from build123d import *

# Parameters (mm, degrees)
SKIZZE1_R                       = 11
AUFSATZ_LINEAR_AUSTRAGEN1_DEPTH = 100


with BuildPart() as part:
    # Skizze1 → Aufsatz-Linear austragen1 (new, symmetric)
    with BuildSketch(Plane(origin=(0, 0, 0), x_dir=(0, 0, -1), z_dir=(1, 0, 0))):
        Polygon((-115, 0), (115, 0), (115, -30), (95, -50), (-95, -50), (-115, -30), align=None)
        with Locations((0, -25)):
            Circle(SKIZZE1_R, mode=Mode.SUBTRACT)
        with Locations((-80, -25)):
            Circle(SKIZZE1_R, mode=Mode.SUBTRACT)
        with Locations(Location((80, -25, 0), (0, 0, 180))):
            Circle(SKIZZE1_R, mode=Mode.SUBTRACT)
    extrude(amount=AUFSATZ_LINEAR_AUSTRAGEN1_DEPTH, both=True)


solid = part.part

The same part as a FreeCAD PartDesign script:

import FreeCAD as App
import Part
import Sketcher

V = App.Vector


def add_polygon(sketch, points):
    """Adds a closed chain of lines whose ends are joined by coincident constraints."""
    first, n = sketch.GeometryCount, len(points)
    for a, b in zip(points, points[1:] + points[:1]):
        sketch.addGeometry(Part.LineSegment(App.Vector(*a, 0), App.Vector(*b, 0)), False)
    for i in range(n):
        sketch.addConstraint(Sketcher.Constraint("Coincident", first + i, 2, first + (i + 1) % n, 1))

doc = App.newDocument("Part")
params = doc.addObject("Spreadsheet::Sheet", "Params")
for row, (alias, value) in enumerate([
    ("sketch1_diameter", "22 mm"),
    ("sketch1_width", "30 mm"),
    ("sketch1_height", "230 mm"),
    ("sketch1_height2", "190 mm"),
    ("pad1_length", "200 mm"),
], start=1):
    params.set(f"A{row}", alias)
    params.set(f"B{row}", "=" + value)
    params.setAlias(f"B{row}", alias)

body = doc.addObject("PartDesign::Body", "Body")

# Sketch on YZ plane
sketch1 = body.newObject("Sketcher::SketchObject", "Sketch")
sketch1.AttachmentSupport = (doc.getObject("YZ_Plane"), [""])
sketch1.MapMode = "FlatFace"
add_polygon(sketch1, [(0, -115), (0, 115), (-30, 115), (-50, 95), (-50, -95), (-30, -115)])  # lines 0-5
sketch1.addGeometry(Part.Circle(V(-25, -80, 0), V(0, 0, 1), 11), False)  # 6
sketch1.addGeometry(Part.Circle(V(-25, 0, 0), V(0, 0, 1), 11), False)  # 7
sketch1.addGeometry(Part.Circle(V(-25, 80, 0), V(0, 0, 1), 11), False)  # 8
sketch1.addConstraint(Sketcher.Constraint("Vertical", 0))
sketch1.addConstraint(Sketcher.Constraint("Horizontal", 1))
sketch1.addConstraint(Sketcher.Constraint("Vertical", 3))
sketch1.addConstraint(Sketcher.Constraint("Horizontal", 5))
sketch1.addConstraint(Sketcher.Constraint("Equal", 6, 7))
sketch1.addConstraint(Sketcher.Constraint("Equal", 7, 8))
sketch1.addConstraint(Sketcher.Constraint("Symmetric", 0, 2, 5, 2, -1, 1))
sketch1.addConstraint(Sketcher.Constraint("Symmetric", 6, 3, 8, 3, -1))
sketch1.addConstraint(Sketcher.Constraint("PointOnObject", 7, 3, -1))
sketch1.addConstraint(Sketcher.Constraint("Perpendicular", 2, 4))
sketch1.addConstraint(Sketcher.Constraint("Vertical", 6, 3, 7, 3))
sketch1.addConstraint(Sketcher.Constraint("Vertical", 1, 2, 4, 2))
sketch1.addConstraint(Sketcher.Constraint("Equal", 2, 4))
sketch1.addConstraint(Sketcher.Constraint("Diameter", 6, 22.0))
sketch1.addConstraint(Sketcher.Constraint("DistanceX", 1, 2, 1, 1, 30.0))
sketch1.addConstraint(Sketcher.Constraint("DistanceY", 0, 1, 0, 2, 230.0))
sketch1.addConstraint(Sketcher.Constraint("DistanceY", 3, 2, 3, 1, 190.0))
sketch1.addConstraint(Sketcher.Constraint("DistanceX", 6, 3, -1, 1, 25.0))
sketch1.addConstraint(Sketcher.Constraint("DistanceY", 6, 3, -1, 1, 80.0))
sketch1.setExpression("Constraints[19]", "Params.sketch1_diameter")
sketch1.setExpression("Constraints[20]", "Params.sketch1_width")
sketch1.setExpression("Constraints[21]", "Params.sketch1_height")
sketch1.setExpression("Constraints[22]", "Params.sketch1_height2")
pad1 = body.newObject("PartDesign::Pad", "Pad")
pad1.Profile = sketch1
pad1.setExpression("Length", "Params.pad1_length")
pad1.Midplane = True

doc.recompute()
